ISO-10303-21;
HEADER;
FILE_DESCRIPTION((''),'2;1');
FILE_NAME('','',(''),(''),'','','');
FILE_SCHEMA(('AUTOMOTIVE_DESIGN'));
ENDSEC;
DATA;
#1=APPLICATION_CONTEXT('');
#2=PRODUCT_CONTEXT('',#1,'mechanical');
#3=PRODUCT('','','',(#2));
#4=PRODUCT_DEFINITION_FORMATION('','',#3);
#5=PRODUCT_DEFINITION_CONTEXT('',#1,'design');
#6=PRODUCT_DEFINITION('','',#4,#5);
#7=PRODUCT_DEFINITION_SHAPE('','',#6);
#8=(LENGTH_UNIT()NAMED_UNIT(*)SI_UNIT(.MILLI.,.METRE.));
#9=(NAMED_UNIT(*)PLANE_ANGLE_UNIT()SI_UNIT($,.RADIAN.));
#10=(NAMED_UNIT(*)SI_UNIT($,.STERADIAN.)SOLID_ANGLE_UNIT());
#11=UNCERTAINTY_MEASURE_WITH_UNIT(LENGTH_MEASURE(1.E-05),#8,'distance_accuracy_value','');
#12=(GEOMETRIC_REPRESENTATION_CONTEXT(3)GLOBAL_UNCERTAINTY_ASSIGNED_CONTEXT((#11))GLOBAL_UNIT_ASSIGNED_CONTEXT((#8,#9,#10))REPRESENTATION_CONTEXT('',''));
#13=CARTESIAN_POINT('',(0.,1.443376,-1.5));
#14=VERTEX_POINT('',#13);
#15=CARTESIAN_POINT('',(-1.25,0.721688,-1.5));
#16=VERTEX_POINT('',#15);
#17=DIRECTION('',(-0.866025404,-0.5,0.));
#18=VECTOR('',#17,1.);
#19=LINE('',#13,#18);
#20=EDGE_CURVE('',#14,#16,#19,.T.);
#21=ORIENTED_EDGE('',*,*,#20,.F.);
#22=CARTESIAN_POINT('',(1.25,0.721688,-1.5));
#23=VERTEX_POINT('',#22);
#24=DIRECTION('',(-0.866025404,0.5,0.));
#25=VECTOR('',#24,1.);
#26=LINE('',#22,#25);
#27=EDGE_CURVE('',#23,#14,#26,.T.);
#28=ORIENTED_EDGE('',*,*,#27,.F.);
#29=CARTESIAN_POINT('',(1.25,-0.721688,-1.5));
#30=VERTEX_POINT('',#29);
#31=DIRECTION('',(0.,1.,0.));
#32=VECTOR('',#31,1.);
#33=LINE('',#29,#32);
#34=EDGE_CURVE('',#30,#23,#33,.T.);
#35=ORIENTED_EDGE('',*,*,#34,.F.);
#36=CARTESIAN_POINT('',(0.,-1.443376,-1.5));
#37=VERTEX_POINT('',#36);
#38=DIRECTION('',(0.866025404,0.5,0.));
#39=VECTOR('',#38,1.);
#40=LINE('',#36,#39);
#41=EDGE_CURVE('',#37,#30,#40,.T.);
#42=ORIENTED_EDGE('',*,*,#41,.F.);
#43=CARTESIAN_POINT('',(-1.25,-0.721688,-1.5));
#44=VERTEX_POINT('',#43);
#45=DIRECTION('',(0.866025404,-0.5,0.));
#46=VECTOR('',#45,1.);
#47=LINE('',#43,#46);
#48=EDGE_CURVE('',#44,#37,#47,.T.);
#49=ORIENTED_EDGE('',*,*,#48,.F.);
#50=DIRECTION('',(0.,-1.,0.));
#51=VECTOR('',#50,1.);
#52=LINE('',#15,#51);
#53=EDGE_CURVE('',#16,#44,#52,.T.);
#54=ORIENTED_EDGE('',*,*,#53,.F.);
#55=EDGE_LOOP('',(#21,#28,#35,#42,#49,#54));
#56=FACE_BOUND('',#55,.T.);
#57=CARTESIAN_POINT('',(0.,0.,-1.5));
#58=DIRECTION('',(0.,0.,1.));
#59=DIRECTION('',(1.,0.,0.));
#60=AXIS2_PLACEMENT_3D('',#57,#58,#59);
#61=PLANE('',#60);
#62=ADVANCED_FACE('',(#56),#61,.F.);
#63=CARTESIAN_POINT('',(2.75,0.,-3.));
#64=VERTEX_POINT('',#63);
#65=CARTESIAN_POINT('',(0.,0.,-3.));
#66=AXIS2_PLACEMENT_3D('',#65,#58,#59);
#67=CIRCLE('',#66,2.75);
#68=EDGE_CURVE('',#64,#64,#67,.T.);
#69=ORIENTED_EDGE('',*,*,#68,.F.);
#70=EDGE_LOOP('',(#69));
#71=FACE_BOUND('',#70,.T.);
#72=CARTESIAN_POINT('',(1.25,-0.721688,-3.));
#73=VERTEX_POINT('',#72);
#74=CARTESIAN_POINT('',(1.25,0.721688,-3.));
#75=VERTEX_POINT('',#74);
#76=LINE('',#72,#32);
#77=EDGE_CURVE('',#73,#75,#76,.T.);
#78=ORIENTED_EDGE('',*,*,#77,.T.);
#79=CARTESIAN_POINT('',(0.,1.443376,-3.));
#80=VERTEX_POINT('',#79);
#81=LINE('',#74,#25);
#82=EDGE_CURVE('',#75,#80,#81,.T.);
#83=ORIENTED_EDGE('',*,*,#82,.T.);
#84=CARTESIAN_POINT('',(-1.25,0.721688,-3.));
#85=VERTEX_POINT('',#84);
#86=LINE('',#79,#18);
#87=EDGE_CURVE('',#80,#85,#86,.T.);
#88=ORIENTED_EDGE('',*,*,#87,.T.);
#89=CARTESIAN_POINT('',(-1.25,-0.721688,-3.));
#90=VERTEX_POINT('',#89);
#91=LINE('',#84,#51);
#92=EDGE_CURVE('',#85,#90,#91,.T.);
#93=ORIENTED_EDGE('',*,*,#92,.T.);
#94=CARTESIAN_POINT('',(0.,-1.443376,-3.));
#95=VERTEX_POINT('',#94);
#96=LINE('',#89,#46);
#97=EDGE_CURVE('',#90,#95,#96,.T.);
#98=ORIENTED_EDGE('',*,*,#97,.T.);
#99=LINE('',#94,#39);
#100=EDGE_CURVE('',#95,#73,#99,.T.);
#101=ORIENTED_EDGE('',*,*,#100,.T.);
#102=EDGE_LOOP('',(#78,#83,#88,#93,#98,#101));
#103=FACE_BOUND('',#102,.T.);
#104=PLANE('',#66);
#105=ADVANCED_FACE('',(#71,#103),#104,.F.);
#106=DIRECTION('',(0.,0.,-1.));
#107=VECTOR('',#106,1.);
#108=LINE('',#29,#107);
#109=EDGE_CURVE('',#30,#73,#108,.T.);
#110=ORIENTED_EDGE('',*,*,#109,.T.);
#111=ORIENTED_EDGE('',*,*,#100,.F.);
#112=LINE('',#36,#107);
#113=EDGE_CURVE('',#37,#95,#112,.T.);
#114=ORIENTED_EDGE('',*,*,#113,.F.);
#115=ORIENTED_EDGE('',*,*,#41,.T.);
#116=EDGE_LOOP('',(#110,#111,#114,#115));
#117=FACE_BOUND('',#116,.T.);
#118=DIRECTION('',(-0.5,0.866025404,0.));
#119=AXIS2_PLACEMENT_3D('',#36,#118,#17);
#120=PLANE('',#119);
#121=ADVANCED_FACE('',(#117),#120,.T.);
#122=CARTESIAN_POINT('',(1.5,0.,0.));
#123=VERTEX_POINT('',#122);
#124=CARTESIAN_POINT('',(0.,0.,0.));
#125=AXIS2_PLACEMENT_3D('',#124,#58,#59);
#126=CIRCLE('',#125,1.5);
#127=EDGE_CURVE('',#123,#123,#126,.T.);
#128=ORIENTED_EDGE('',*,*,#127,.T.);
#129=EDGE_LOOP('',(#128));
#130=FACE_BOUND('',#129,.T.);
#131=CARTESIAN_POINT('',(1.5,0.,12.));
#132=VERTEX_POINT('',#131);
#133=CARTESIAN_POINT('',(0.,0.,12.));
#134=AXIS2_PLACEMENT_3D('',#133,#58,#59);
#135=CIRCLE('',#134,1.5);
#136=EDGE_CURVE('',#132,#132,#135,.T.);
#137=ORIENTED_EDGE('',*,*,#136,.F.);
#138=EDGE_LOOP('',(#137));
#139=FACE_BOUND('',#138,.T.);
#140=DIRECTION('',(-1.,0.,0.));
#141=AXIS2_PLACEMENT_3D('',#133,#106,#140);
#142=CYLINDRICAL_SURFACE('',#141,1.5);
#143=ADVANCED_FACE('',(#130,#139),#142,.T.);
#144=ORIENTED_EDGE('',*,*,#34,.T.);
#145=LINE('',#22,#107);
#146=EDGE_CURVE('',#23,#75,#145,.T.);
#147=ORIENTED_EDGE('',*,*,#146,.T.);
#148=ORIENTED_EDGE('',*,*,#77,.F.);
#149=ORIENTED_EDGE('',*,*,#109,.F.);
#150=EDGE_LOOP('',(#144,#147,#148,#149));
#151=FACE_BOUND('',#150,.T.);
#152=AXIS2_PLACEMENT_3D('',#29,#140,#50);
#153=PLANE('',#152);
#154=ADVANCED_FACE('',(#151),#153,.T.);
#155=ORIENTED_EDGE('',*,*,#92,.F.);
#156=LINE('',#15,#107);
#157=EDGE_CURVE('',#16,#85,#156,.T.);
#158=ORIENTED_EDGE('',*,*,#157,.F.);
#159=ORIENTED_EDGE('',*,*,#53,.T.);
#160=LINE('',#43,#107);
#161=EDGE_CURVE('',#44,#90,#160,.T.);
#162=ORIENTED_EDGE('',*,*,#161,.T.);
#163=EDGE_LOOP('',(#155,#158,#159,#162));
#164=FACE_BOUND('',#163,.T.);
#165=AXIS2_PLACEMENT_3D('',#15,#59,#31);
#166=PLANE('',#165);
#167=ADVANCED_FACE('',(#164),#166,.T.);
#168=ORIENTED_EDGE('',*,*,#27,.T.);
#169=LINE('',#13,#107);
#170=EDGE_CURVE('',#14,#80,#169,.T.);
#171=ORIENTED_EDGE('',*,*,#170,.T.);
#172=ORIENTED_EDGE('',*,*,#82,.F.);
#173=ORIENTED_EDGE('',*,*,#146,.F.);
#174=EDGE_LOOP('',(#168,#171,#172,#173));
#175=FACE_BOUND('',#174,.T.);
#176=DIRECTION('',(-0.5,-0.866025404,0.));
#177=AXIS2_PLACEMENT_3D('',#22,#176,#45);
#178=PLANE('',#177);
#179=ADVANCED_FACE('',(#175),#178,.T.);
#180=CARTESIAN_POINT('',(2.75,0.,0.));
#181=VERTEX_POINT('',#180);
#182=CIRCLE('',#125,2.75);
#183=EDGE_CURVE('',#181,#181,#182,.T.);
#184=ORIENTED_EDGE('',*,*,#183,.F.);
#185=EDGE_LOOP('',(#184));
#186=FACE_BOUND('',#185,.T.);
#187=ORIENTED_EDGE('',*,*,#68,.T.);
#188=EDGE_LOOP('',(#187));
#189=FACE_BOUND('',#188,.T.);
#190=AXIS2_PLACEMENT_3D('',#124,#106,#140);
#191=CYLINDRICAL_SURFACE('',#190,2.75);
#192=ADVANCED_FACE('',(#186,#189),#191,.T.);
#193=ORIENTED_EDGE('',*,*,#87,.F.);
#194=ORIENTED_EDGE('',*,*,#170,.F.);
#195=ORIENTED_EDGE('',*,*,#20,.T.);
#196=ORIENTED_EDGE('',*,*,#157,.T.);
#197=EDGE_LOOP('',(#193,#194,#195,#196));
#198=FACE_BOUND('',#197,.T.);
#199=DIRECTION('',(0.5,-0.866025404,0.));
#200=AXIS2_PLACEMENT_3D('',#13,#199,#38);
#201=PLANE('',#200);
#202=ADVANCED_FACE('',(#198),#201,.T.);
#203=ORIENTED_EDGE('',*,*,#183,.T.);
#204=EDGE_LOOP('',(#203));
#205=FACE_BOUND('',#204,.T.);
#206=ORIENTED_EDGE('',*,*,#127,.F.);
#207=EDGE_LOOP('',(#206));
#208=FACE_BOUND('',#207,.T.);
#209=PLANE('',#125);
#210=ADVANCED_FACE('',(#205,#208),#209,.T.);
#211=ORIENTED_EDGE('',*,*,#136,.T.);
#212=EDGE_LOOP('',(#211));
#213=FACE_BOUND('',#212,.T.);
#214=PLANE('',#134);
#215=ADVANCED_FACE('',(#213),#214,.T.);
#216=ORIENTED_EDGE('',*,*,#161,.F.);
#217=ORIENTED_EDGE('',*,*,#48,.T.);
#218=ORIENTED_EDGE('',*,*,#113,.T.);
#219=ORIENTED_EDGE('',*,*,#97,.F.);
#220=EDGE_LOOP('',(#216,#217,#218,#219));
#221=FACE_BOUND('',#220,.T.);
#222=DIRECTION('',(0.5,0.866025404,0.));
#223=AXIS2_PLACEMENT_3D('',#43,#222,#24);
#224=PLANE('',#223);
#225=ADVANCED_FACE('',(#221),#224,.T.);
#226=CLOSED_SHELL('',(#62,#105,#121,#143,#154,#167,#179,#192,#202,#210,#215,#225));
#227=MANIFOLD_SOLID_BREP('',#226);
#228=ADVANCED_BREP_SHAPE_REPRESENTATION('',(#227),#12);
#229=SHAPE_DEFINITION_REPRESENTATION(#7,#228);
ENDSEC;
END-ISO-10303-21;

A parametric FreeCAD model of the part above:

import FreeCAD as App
import Part
import Sketcher
Q = App.Units.Quantity

doc = App.newDocument("Part")
body = doc.addObject("PartDesign::Body", "Body")

# Sketch on XY plane
sketch1 = body.newObject("Sketcher::SketchObject", "Sketch")
sketch1.AttachmentSupport = (doc.getObject("XY_Plane"), [""])
sketch1.MapMode = "FlatFace"
sketch1.AttachmentOffset = App.Placement(App.Vector(0, 0, -3), App.Rotation())
sketch1.addGeometry(Part.Circle(App.Vector(0, 0, 0), App.Vector(0, 0, 1), 2.8), False)
sketch1.addConstraint([
    Sketcher.Constraint("Coincident", 0, 3, -1, 1),
    Sketcher.Constraint("Diameter", 0, 5.5),
])
pad1 = body.newObject("PartDesign::Pad", "Pad")
pad1.Profile = sketch1
pad1.Length = 3

# Sketch on XY plane
sketch2 = body.newObject("Sketcher::SketchObject", "Sketch001")
sketch2.AttachmentSupport = (doc.getObject("XY_Plane"), [""])
sketch2.MapMode = "FlatFace"
sketch2.addGeometry(Part.Circle(App.Vector(0, 0, 0), App.Vector(0, 0, 1), 1.5), False)
sketch2.addConstraint([
    Sketcher.Constraint("Coincident", 0, 3, -1, 1),
    Sketcher.Constraint("Diameter", 0, 3.0),
])
pad2 = body.newObject("PartDesign::Pad", "Pad001")
pad2.Profile = sketch2
pad2.Length = 12

# Sketch on XY plane
sketch3 = body.newObject("Sketcher::SketchObject", "Sketch002")
sketch3.AttachmentSupport = (doc.getObject("XY_Plane"), [""])
sketch3.MapMode = "FlatFace"
sketch3.AttachmentOffset = App.Placement(App.Vector(0, 0, -3), App.Rotation())
sketch3.addGeometry([
    Part.LineSegment(App.Vector(0, -1.4, 0), App.Vector(1.2, -0.7, 0)),  # 0
    Part.LineSegment(App.Vector(1.2, -0.7, 0), App.Vector(1.2, 0.7, 0)),  # 1
    Part.LineSegment(App.Vector(1.2, 0.7, 0), App.Vector(0, 1.4, 0)),  # 2
    Part.LineSegment(App.Vector(0, 1.4, 0), App.Vector(-1.2, 0.7, 0)),  # 3
    Part.LineSegment(App.Vector(-1.2, 0.7, 0), App.Vector(-1.2, -0.7, 0)),  # 4
    Part.LineSegment(App.Vector(-1.2, -0.7, 0), App.Vector(0, -1.4, 0)),  # 5
], False)
sketch3.addConstraint([
    Sketcher.Constraint("Coincident", 0, 2, 1, 1),
    Sketcher.Constraint("Coincident", 1, 2, 2, 1),
    Sketcher.Constraint("Coincident", 2, 2, 3, 1),
    Sketcher.Constraint("Coincident", 3, 2, 4, 1),
    Sketcher.Constraint("Coincident", 4, 2, 5, 1),
    Sketcher.Constraint("Coincident", 5, 2, 0, 1),
    Sketcher.Constraint("Vertical", 1),
    Sketcher.Constraint("Vertical", 4),
    Sketcher.Constraint("Symmetric", 0, 2, 3, 2, -1, 1),
    Sketcher.Constraint("Symmetric", 2, 2, 5, 2, -1, 1),
    Sketcher.Constraint("PointOnObject", 2, 2, -2),
    Sketcher.Constraint("Parallel", 2, 5),
    Sketcher.Constraint("Horizontal", 1, 2, 3, 2),
    Sketcher.Constraint("Angle", 0, Q("30 deg")),
    Sketcher.Constraint("DistanceX", 3, 2, 1, 2, 2.5),
    Sketcher.Constraint("DistanceY", 1, 1, 1, 2, 1.443376),
])
pocket1 = body.newObject("PartDesign::Pocket", "Pocket")
pocket1.Profile = sketch3
pocket1.Length = 1.5
pocket1.Reversed = True

doc.recompute()
